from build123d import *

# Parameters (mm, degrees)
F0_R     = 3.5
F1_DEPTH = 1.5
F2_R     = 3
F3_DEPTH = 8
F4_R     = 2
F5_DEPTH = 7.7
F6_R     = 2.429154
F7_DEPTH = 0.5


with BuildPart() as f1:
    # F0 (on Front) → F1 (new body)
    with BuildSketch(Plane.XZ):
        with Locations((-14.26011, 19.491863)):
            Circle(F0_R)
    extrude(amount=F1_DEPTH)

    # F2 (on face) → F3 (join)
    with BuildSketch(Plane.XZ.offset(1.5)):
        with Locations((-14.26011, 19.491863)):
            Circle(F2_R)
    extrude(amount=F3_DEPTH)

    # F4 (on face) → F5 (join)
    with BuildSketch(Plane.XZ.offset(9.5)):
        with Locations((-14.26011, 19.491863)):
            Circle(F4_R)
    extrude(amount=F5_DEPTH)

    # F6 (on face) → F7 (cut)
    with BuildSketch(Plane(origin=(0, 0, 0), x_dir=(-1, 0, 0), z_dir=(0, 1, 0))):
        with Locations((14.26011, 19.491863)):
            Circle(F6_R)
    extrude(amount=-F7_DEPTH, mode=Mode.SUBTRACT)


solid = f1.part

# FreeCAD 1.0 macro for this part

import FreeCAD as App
import Part
import Sketcher
Q = App.Units.Quantity

doc = App.newDocument("Part")
params = doc.addObject("Spreadsheet::Sheet", "Params")
for row, (alias, value) in enumerate([
    ("sketch1_diameter", "7 mm"),
    ("pad1_length", "1.5 mm"),
    ("sketch2_diameter", "6 mm"),
    ("pad2_length", "8 mm"),
    ("sketch3_diameter", "4 mm"),
    ("pad3_length", "7.7 mm"),
    ("pocket1_length", "0.5 mm"),
], start=1):
    params.set(f"A{row}", alias)
    params.set(f"B{row}", "=" + value)
    params.setAlias(f"B{row}", alias)

body = doc.addObject("PartDesign::Body", "Body")

# Sketch on XZ plane
sketch1 = body.newObject("Sketcher::SketchObject", "Sketch")
sketch1.AttachmentSupport = (doc.getObject("XZ_Plane"), [""])
sketch1.MapMode = "FlatFace"
sketch1.addGeometry(Part.Circle(App.Vector(-14.26011, 19.491863, 0), App.Vector(0, 0, 1), 3.5), False)
sketch1.addConstraint([
    Sketcher.Constraint("Diameter", 0, Q("7 mm")),
    Sketcher.Constraint("DistanceX", 0, 3, -1, 1, Q("14.26011 mm")),
    Sketcher.Constraint("DistanceY", -1, 1, 0, 3, Q("19.491863 mm")),
])
sketch1.setExpression("Constraints[0]", "Params.sketch1_diameter")
pad1 = body.newObject("PartDesign::Pad", "Pad")
pad1.Profile = sketch1
pad1.setExpression("Length", "Params.pad1_length")

# Sketch on XZ plane
sketch2 = body.newObject("Sketcher::SketchObject", "Sketch001")
sketch2.AttachmentSupport = (doc.getObject("XZ_Plane"), [""])
sketch2.MapMode = "FlatFace"
sketch2.AttachmentOffset = App.Placement(App.Vector(0, 0, 1.5), App.Rotation())
sketch2.addGeometry(Part.Circle(App.Vector(-14.26011, 19.491863, 0), App.Vector(0, 0, 1), 3), False)
sketch2.addConstraint([
    Sketcher.Constraint("Diameter", 0, Q("6 mm")),
    Sketcher.Constraint("DistanceX", 0, 3, -1, 1, Q("14.26011 mm")),
    Sketcher.Constraint("DistanceY", -1, 1, 0, 3, Q("19.491863 mm")),
])
sketch2.setExpression("Constraints[0]", "Params.sketch2_diameter")
pad2 = body.newObject("PartDesign::Pad", "Pad001")
pad2.Profile = sketch2
pad2.setExpression("Length", "Params.pad2_length")

# Sketch on XZ plane
sketch3 = body.newObject("Sketcher::SketchObject", "Sketch002")
sketch3.AttachmentSupport = (doc.getObject("XZ_Plane"), [""])
sketch3.MapMode = "FlatFace"
sketch3.AttachmentOffset = App.Placement(App.Vector(0, 0, 9.5), App.Rotation())
sketch3.addGeometry(Part.Circle(App.Vector(-14.26011, 19.491863, 0), App.Vector(0, 0, 1), 2), False)
sketch3.addConstraint([
    Sketcher.Constraint("Diameter", 0, Q("4 mm")),
    Sketcher.Constraint("DistanceX", 0, 3, -1, 1, Q("14.26011 mm")),
    Sketcher.Constraint("DistanceY", -1, 1, 0, 3, Q("19.491863 mm")),
])
sketch3.setExpression("Constraints[0]", "Params.sketch3_diameter")
pad3 = body.newObject("PartDesign::Pad", "Pad002")
pad3.Profile = sketch3
pad3.setExpression("Length", "Params.pad3_length")

# Sketch on XZ plane
sketch4 = body.newObject("Sketcher::SketchObject", "Sketch003")
sketch4.AttachmentSupport = (doc.getObject("XZ_Plane"), [""])
sketch4.MapMode = "FlatFace"
sketch4.addGeometry(Part.Circle(App.Vector(-14.26011, 19.491863, 0), App.Vector(0, 0, 1), 2.429154), False)
sketch4.addConstraint([
    Sketcher.Constraint("Diameter", 0, Q("4.858308 mm")),
    Sketcher.Constraint("DistanceX", 0, 3, -1, 1, Q("14.26011 mm")),
    Sketcher.Constraint("DistanceY", -1, 1, 0, 3, Q("19.491863 mm")),
])
pocket1 = body.newObject("PartDesign::Pocket", "Pocket")
pocket1.Profile = sketch4
pocket1.setExpression("Length", "Params.pocket1_length")
pocket1.Reversed = True

doc.recompute()
